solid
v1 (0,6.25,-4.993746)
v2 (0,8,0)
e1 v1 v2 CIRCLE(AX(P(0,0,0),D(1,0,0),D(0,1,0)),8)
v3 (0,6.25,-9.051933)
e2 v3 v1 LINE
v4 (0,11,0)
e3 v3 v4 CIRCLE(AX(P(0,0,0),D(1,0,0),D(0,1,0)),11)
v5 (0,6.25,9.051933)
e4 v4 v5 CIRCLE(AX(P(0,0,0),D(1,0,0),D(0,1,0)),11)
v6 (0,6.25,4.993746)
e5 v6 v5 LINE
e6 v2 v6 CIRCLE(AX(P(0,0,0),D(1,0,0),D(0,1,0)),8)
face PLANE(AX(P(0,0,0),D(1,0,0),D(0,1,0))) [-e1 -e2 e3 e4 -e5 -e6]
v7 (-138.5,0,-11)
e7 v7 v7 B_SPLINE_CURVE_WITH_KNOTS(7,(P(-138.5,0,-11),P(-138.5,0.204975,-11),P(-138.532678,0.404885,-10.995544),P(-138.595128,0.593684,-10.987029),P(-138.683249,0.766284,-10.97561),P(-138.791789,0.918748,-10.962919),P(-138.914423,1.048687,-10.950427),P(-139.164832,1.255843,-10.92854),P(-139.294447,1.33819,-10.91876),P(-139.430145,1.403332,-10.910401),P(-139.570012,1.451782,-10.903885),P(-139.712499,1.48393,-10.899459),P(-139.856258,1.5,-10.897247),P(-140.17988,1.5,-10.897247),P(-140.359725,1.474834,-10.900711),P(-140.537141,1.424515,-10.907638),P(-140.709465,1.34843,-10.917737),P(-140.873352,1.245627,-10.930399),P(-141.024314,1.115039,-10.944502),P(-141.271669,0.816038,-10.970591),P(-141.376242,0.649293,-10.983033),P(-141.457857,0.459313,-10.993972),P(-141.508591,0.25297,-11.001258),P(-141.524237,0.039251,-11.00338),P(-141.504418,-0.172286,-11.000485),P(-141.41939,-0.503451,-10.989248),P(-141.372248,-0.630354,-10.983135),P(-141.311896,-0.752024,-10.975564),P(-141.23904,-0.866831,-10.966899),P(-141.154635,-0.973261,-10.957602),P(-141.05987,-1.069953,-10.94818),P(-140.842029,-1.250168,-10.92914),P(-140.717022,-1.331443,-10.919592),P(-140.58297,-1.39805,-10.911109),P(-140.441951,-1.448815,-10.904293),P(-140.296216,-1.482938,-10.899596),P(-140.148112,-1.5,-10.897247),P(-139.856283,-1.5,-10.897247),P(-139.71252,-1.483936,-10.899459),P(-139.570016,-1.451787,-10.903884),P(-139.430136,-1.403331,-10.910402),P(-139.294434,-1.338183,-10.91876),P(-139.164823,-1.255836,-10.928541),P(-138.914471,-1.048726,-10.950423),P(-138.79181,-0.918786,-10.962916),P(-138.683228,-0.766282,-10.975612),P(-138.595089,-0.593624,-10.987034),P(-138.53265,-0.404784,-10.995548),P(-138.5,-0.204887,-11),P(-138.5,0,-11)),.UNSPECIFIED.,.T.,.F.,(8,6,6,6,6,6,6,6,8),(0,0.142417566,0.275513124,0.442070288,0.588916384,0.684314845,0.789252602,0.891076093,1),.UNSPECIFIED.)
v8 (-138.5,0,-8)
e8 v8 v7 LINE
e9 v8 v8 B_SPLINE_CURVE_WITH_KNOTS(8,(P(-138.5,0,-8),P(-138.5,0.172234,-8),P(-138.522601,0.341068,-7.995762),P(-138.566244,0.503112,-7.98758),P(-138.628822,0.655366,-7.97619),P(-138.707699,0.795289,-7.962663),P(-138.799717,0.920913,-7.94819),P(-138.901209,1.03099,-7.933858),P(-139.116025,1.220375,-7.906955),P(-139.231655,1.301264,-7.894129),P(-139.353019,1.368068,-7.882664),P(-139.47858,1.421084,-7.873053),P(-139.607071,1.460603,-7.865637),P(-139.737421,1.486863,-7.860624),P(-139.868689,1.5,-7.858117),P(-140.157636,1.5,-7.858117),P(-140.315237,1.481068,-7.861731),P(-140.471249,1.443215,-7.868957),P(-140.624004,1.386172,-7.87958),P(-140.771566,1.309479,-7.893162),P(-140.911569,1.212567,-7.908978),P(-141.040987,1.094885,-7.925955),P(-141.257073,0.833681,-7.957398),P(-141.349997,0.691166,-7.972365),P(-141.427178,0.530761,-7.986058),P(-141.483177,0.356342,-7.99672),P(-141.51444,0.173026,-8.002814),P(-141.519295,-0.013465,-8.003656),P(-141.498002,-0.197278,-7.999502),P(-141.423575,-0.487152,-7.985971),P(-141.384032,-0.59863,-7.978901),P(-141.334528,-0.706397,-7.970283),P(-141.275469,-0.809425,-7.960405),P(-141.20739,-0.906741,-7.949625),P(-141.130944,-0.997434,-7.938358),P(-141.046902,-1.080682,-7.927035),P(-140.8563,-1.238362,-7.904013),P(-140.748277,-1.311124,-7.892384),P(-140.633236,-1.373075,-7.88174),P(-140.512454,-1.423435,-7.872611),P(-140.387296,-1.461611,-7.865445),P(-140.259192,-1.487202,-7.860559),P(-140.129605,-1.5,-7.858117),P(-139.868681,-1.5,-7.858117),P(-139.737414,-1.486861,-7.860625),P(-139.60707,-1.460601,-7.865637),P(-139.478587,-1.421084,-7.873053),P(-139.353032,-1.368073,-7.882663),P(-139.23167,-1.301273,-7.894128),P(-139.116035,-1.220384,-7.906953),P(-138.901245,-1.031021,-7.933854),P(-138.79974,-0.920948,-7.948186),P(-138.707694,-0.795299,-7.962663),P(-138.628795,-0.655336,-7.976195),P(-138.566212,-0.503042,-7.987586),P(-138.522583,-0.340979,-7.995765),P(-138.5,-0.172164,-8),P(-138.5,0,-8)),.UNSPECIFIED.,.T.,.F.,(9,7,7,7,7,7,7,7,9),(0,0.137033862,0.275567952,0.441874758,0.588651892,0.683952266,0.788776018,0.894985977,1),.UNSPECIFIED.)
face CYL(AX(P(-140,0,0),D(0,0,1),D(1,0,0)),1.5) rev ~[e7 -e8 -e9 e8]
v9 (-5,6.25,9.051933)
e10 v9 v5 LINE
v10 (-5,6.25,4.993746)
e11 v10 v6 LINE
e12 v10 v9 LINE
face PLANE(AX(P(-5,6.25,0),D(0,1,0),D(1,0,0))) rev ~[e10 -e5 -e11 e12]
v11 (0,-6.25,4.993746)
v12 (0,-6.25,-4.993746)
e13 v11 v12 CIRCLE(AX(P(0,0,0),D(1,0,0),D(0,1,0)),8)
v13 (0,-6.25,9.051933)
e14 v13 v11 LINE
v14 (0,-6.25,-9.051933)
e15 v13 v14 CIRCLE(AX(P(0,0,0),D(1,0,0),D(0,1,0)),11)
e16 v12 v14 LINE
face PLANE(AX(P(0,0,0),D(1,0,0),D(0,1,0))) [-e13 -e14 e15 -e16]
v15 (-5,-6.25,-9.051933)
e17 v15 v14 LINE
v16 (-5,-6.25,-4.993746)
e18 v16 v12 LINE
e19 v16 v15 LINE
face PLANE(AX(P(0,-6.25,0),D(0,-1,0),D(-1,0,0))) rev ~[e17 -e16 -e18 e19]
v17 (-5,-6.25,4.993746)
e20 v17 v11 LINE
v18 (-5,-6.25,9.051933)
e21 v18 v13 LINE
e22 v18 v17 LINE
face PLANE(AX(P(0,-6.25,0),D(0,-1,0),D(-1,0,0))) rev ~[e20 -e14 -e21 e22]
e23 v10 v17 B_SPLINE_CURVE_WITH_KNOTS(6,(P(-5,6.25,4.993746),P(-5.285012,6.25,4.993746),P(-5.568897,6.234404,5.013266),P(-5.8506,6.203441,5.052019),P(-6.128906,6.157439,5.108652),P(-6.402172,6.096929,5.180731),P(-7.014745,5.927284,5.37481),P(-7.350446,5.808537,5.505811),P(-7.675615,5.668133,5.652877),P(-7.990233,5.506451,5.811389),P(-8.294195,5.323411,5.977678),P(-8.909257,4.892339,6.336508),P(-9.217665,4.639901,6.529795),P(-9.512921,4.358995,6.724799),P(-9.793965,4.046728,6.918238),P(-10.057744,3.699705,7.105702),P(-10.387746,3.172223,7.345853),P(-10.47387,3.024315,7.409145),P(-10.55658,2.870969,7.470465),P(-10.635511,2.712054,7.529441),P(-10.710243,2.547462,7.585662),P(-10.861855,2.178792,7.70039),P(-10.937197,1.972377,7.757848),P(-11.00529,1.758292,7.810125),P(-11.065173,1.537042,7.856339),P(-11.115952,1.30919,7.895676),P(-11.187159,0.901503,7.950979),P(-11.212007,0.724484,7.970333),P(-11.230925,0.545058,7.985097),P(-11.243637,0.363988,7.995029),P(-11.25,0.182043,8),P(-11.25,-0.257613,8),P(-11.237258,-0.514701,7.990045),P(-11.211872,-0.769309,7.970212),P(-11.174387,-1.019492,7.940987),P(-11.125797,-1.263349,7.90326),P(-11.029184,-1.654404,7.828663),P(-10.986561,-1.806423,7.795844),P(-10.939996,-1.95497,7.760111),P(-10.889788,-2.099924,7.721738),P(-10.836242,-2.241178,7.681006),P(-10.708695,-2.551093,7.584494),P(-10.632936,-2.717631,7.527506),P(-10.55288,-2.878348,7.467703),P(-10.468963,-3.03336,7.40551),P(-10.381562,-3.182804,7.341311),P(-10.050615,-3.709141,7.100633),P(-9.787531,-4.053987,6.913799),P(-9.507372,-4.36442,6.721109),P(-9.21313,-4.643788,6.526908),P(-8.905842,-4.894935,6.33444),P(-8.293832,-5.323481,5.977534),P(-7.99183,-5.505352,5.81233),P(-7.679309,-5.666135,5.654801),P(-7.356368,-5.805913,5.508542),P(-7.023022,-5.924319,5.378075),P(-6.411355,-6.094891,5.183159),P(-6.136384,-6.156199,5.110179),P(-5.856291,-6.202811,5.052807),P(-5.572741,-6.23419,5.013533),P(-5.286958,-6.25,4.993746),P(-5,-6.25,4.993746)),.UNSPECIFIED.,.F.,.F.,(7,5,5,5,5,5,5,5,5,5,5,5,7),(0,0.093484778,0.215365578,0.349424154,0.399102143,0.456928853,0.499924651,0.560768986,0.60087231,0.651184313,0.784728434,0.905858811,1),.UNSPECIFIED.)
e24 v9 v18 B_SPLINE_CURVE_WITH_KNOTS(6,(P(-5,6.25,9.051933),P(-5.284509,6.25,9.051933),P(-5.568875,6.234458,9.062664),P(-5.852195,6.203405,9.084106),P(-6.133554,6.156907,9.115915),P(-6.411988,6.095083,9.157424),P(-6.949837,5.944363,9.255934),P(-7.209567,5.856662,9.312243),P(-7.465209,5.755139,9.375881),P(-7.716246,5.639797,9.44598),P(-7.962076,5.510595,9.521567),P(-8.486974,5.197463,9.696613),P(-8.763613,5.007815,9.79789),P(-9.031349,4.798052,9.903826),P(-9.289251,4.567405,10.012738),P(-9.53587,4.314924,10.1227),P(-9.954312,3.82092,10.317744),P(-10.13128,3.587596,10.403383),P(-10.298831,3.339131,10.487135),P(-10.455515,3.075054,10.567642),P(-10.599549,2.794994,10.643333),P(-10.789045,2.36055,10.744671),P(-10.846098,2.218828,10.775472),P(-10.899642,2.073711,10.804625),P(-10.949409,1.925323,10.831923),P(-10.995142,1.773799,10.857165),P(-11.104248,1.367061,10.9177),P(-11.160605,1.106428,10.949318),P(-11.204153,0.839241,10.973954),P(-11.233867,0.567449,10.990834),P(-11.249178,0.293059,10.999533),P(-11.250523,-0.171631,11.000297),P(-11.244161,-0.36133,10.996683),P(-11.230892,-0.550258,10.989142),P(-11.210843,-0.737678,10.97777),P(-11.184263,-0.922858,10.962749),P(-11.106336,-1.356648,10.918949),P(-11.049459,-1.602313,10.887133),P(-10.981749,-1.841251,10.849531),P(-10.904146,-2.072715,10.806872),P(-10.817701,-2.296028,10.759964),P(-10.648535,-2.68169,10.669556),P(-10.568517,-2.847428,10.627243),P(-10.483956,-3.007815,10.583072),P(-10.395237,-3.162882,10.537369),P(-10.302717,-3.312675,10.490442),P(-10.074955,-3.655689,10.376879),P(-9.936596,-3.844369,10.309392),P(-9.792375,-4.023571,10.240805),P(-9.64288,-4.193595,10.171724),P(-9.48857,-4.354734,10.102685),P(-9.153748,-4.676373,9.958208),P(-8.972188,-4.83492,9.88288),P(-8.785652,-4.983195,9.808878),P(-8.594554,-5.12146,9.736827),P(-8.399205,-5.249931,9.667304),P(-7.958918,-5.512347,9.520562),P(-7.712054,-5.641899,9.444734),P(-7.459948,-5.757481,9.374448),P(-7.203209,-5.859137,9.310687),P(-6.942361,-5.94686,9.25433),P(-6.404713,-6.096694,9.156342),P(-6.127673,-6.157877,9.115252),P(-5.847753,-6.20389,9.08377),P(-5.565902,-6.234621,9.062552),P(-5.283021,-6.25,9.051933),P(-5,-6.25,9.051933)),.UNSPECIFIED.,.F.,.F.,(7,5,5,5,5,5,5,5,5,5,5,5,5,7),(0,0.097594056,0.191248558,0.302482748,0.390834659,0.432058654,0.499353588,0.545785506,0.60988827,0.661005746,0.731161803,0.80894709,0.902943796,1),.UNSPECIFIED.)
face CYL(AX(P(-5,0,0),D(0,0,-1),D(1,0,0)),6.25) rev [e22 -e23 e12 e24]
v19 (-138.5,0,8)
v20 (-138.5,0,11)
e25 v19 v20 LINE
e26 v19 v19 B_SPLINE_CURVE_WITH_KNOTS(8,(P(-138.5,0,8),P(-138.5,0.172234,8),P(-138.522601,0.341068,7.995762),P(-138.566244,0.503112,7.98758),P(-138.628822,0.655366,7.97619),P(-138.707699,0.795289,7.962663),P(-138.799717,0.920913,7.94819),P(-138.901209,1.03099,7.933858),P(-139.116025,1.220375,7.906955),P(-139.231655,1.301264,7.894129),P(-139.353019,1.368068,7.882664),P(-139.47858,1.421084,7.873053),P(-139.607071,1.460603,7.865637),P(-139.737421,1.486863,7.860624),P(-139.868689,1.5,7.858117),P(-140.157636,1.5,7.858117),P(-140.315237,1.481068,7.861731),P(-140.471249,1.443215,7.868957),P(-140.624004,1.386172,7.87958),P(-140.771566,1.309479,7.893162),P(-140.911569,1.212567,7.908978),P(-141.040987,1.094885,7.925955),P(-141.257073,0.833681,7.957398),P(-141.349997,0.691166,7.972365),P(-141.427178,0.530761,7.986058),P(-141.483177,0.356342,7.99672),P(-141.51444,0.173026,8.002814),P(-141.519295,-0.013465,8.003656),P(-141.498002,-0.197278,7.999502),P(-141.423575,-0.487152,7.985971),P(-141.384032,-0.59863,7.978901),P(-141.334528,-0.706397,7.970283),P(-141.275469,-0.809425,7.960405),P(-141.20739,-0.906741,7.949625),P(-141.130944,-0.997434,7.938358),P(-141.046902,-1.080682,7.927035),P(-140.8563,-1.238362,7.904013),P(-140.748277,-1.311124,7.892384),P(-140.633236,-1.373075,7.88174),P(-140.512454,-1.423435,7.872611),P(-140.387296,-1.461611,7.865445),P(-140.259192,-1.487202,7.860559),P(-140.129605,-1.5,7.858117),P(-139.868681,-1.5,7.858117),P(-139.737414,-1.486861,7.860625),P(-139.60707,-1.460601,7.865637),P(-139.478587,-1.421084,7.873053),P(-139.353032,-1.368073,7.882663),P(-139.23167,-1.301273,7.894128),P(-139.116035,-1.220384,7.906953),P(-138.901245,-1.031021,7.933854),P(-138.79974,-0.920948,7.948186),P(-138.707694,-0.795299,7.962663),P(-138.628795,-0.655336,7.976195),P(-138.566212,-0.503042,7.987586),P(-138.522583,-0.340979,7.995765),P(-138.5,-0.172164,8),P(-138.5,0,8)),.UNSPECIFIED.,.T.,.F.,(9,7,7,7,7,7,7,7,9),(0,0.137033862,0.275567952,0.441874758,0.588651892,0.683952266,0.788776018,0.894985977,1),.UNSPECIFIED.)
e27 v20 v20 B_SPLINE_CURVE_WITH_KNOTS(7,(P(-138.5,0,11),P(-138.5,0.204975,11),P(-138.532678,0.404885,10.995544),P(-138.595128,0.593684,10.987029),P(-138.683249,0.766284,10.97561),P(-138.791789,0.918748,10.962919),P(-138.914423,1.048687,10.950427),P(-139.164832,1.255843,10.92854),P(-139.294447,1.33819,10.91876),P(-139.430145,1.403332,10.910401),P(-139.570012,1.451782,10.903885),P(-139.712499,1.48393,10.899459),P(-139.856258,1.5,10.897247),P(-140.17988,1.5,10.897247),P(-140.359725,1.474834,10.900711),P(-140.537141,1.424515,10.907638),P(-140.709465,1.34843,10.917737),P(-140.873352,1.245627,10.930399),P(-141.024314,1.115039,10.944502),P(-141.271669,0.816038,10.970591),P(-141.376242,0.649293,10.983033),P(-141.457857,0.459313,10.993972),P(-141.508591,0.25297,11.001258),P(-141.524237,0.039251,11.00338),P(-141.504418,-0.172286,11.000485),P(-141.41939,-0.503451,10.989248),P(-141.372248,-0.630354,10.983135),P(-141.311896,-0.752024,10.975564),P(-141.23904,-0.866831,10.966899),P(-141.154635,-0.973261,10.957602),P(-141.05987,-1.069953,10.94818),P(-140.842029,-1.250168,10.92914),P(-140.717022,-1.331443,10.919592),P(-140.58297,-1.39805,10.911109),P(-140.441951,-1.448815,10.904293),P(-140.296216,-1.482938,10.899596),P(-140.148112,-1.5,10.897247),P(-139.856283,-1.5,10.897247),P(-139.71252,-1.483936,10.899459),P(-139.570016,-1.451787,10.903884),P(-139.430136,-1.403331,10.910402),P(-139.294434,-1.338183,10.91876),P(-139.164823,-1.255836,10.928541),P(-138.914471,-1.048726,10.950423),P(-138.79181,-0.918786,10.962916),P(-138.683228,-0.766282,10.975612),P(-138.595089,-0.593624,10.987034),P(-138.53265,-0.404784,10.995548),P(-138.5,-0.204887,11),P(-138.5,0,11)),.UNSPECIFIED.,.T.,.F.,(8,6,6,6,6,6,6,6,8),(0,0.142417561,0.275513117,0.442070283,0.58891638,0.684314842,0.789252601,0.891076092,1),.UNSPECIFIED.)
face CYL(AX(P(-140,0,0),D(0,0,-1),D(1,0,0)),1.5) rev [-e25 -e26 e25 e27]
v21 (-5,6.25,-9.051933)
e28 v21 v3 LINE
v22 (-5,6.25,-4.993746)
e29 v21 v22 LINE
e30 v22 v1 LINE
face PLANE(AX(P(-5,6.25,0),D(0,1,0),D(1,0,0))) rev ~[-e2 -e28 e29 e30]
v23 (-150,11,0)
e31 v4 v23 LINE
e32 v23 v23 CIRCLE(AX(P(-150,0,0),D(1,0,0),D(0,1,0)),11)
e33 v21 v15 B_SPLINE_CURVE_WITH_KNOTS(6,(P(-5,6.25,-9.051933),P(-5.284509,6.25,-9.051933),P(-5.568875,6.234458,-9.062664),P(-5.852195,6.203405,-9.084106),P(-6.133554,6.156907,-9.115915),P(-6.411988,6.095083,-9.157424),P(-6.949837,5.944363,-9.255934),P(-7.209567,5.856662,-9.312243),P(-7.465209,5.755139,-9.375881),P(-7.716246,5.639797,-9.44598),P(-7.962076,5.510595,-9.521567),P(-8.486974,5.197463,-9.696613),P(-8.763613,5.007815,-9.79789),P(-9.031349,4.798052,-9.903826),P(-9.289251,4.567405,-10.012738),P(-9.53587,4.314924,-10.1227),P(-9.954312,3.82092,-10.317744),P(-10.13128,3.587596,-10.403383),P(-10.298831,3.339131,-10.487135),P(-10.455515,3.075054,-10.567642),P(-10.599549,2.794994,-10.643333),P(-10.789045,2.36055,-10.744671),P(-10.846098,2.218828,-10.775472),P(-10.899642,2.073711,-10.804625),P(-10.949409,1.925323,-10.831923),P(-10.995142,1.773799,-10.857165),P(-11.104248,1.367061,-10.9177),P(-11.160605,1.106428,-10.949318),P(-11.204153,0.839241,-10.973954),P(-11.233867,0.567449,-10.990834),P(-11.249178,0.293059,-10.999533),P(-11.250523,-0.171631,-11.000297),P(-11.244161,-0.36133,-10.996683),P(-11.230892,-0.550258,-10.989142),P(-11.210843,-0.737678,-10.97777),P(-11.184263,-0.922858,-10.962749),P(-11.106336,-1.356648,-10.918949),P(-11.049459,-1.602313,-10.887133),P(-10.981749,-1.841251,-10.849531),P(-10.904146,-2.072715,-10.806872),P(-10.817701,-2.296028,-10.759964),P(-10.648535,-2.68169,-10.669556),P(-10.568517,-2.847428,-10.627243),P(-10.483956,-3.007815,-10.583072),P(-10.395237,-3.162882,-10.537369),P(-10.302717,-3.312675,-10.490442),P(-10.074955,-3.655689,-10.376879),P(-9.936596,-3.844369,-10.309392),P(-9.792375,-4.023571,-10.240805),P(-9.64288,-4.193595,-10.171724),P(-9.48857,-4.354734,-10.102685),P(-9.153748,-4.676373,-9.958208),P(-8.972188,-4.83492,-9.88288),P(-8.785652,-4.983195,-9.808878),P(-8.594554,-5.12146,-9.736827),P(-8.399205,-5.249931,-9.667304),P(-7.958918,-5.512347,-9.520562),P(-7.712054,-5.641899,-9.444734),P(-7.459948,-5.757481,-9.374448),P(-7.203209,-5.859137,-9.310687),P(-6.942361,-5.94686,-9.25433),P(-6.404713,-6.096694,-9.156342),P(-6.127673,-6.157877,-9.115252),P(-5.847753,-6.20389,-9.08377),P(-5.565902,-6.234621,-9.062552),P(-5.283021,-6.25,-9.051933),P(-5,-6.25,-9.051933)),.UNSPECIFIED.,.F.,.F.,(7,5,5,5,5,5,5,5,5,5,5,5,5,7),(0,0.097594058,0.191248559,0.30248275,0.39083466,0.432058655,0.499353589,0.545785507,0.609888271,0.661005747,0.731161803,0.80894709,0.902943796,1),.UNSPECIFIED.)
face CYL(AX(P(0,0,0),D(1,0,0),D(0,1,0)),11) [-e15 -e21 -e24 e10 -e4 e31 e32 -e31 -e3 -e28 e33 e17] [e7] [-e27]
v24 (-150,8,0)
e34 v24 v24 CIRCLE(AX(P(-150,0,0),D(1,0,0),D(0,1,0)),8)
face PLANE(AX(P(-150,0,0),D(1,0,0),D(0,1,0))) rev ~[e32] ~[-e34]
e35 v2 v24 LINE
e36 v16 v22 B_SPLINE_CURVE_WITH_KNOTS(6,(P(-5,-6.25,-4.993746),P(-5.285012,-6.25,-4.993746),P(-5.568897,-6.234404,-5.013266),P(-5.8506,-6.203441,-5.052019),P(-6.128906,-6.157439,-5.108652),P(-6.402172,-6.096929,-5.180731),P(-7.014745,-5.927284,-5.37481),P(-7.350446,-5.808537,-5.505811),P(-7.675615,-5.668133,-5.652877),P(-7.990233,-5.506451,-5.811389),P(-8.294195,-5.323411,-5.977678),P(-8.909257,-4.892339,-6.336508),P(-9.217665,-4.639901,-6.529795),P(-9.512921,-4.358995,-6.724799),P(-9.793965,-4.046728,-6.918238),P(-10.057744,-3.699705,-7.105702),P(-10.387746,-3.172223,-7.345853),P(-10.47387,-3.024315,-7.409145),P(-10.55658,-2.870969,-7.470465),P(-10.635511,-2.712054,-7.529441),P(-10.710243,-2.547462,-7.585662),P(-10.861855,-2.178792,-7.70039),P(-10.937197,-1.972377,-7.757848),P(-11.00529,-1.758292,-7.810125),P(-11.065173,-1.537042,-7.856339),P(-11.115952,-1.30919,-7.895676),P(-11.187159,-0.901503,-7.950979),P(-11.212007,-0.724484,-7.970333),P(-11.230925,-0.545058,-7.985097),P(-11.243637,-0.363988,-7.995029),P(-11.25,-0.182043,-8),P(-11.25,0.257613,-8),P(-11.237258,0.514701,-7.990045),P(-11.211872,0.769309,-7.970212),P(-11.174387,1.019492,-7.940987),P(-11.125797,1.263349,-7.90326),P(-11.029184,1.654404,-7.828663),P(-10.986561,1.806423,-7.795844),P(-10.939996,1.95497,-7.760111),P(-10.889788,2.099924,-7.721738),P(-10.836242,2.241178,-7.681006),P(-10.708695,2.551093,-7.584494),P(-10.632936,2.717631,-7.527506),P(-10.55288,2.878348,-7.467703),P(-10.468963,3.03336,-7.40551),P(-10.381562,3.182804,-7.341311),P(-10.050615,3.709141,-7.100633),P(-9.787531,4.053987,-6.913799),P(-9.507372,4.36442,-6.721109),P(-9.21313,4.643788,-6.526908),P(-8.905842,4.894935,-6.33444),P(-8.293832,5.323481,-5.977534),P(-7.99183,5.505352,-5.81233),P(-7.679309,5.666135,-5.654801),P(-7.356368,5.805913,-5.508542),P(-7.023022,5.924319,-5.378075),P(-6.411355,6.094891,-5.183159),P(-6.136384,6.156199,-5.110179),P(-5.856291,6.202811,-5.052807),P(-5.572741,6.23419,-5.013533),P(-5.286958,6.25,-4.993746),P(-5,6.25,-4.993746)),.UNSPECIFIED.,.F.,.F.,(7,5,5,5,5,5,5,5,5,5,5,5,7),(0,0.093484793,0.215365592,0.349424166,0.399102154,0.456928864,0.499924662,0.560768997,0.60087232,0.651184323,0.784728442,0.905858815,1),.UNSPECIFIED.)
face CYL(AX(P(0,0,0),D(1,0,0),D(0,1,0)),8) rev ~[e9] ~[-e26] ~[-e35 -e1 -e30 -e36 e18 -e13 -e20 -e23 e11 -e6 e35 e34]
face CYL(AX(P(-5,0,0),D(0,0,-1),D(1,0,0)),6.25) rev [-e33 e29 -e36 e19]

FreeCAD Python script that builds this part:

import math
import FreeCAD as App
import Part
import Sketcher

V = App.Vector
Q = App.Units.Quantity

doc = App.newDocument("Part")
body = doc.addObject("PartDesign::Body", "Body")

# Sketch on YZ plane
sketch1 = body.newObject("Sketcher::SketchObject", "Sketch")
sketch1.AttachmentSupport = (doc.getObject("YZ_Plane"), [""])
sketch1.MapMode = "FlatFace"
sketch1.addGeometry(Part.Circle(V(0, 0, 0), V(0, 0, 1), 11), False)
sketch1.addGeometry(Part.Circle(V(0, 0, 0), V(0, 0, 1), 8), False)
sketch1.addConstraint(Sketcher.Constraint("Coincident", 0, 3, -1, 1))
sketch1.addConstraint(Sketcher.Constraint("Coincident", 1, 3, -1, 1))
sketch1.addConstraint(Sketcher.Constraint("Diameter", 0, Q("22 mm")))
sketch1.addConstraint(Sketcher.Constraint("Diameter", 1, Q("16 mm")))
pad1 = body.newObject("PartDesign::Pad", "Pad")
pad1.Profile = sketch1
pad1.Length = 150
pad1.Reversed = True

# Sketch on XY plane
sketch2 = body.newObject("Sketcher::SketchObject", "Sketch001")
sketch2.AttachmentSupport = (doc.getObject("XY_Plane"), [""])
sketch2.MapMode = "FlatFace"
sketch2.addGeometry(Part.LineSegment(V(0, -6, 0), V(0, 6, 0)), False)
sketch2.addGeometry(Part.LineSegment(V(0, 6, 0), V(-5, 6, 0)), False)
sketch2.addGeometry(Part.LineSegment(V(-5, 6, 0), V(-5, -6, 0)), False)
sketch2.addGeometry(Part.LineSegment(V(-5, -6, 0), V(0, -6, 0)), False)
sketch2.addConstraint(Sketcher.Constraint("Coincident", 0, 2, 1, 1))
sketch2.addConstraint(Sketcher.Constraint("Coincident", 1, 2, 2, 1))
sketch2.addConstraint(Sketcher.Constraint("Coincident", 2, 2, 3, 1))
sketch2.addConstraint(Sketcher.Constraint("Coincident", 3, 2, 0, 1))
sketch2.addConstraint(Sketcher.Constraint("Vertical", 0))
sketch2.addConstraint(Sketcher.Constraint("Horizontal", 1))
sketch2.addConstraint(Sketcher.Constraint("Vertical", 2))
sketch2.addConstraint(Sketcher.Constraint("Horizontal", 3))
sketch2.addConstraint(Sketcher.Constraint("Symmetric", 0, 2, 3, 2, -1, 1))
sketch2.addConstraint(Sketcher.Constraint("DistanceX", 1, 2, 1, 1, Q("5 mm")))
sketch2.addConstraint(Sketcher.Constraint("DistanceY", -1, 1, 0, 2, Q("6.25 mm")))
pocket1 = body.newObject("PartDesign::Pocket", "Pocket")
pocket1.Profile = sketch2
pocket1.Length = 150
pocket1.Midplane = True

# Sketch on XY plane
sketch3 = body.newObject("Sketcher::SketchObject", "Sketch002")
sketch3.AttachmentSupport = (doc.getObject("XY_Plane"), [""])
sketch3.MapMode = "FlatFace"
sketch3.addGeometry(Part.ArcOfCircle(Part.Circle(V(-5, 0, 0), V(0, 0, 1), 6), math.radians(90), math.radians(270)), False)
sketch3.addGeometry(Part.LineSegment(V(-5, -6, 0), V(-5, 6, 0)), False)
sketch3.addConstraint(Sketcher.Constraint("Coincident", 0, 1, 1, 2))
sketch3.addConstraint(Sketcher.Constraint("Coincident", 1, 1, 0, 2))
sketch3.addConstraint(Sketcher.Constraint("Vertical", 1))
sketch3.addConstraint(Sketcher.Constraint("PointOnObject", 0, 3, -1))
sketch3.addConstraint(Sketcher.Constraint("Radius", 0, Q("6.25 mm")))
sketch3.addConstraint(Sketcher.Constraint("DistanceX", 0, 3, -1, 1, Q("5 mm")))
sketch3.addConstraint(Sketcher.Constraint("DistanceX", 0, 1, -1, 1, Q("5 mm")))
pocket2 = body.newObject("PartDesign::Pocket", "Pocket001")
pocket2.Profile = sketch3
pocket2.Length = 150
pocket2.Midplane = True

# Sketch on XY plane
sketch4 = body.newObject("Sketcher::SketchObject", "Sketch003")
sketch4.AttachmentSupport = (doc.getObject("XY_Plane"), [""])
sketch4.MapMode = "FlatFace"
sketch4.addGeometry(Part.Circle(V(-140, 0, 0), V(0, 0, 1), 1.5), False)
sketch4.addConstraint(Sketcher.Constraint("PointOnObject", 0, 3, -1))
sketch4.addConstraint(Sketcher.Constraint("Diameter", 0, Q("3 mm")))
sketch4.addConstraint(Sketcher.Constraint("DistanceX", 0, 3, -1, 1, Q("140 mm")))
pocket3 = body.newObject("PartDesign::Pocket", "Pocket002")
pocket3.Profile = sketch4
pocket3.Length = 150
pocket3.Midplane = True

doc.recompute()
